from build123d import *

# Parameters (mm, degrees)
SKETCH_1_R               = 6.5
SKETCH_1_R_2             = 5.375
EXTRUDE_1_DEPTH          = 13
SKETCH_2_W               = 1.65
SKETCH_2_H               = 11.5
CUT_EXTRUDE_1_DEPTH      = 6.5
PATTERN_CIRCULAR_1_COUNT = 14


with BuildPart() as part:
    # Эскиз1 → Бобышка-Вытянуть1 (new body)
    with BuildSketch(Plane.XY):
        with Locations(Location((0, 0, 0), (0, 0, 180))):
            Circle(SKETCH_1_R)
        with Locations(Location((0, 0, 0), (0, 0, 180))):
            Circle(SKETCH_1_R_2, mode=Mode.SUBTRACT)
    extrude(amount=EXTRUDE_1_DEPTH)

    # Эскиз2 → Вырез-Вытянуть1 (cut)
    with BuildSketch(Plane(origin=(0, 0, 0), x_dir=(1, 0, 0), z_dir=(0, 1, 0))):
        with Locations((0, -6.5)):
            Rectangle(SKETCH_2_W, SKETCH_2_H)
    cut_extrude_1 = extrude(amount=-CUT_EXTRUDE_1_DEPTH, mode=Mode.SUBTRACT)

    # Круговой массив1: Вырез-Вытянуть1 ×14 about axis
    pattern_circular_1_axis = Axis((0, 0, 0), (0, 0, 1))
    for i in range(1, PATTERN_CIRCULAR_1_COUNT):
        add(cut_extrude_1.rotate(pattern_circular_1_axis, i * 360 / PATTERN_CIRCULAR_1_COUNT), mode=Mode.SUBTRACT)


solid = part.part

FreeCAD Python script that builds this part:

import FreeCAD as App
import Part
import Sketcher
from FreeCAD import Vector
Q = App.Units.Quantity


def add_polygon(sketch, points):
    """Adds a closed chain of lines whose ends are joined by coincident constraints."""
    first, n = sketch.GeometryCount, len(points)
    for a, b in zip(points, points[1:] + points[:1]):
        sketch.addGeometry(Part.LineSegment(App.Vector(*a, 0), App.Vector(*b, 0)), False)
    for i in range(n):
        sketch.addConstraint(Sketcher.Constraint("Coincident", first + i, 2, first + (i + 1) % n, 1))

doc = App.newDocument("Part")
body = doc.addObject("PartDesign::Body", "Body")

# Sketch on XY plane
sketch1 = body.newObject("Sketcher::SketchObject", "Sketch")
sketch1.AttachmentSupport = (doc.getObject("XY_Plane"), [""])
sketch1.MapMode = "FlatFace"
sketch1.addGeometry([
    Part.Circle(Vector(0, 0, 0), Vector(0, 0, 1), 6),
    Part.Circle(Vector(0, 0, 0), Vector(0, 0, 1), 5),
], False)
sketch1.addConstraint([
    Sketcher.Constraint("Coincident", 0, 3, -1, 1),
    Sketcher.Constraint("Coincident", 1, 3, -1, 1),
    Sketcher.Constraint("Diameter", 0, Q("13 mm")),
    Sketcher.Constraint("Diameter", 1, Q("10.75 mm")),
])
pad1 = body.newObject("PartDesign::Pad", "Pad")
pad1.Profile = sketch1
pad1.Length = 13

# Sketch on XZ plane
sketch2 = body.newObject("Sketcher::SketchObject", "Sketch001")
sketch2.AttachmentSupport = (doc.getObject("XZ_Plane"), [""])
sketch2.MapMode = "FlatFace"
add_polygon(sketch2, [(-0.8, 0.8), (-0.8, 12.2), (0.8, 12.2), (0.8, 0.8)])  # lines 0-3
sketch2.addConstraint([
    Sketcher.Constraint("Vertical", 0),
    Sketcher.Constraint("Horizontal", 1),
    Sketcher.Constraint("Vertical", 2),
    Sketcher.Constraint("Horizontal", 3),
    Sketcher.Constraint("DistanceY", 0, 1, 0, 2, Q("11.5 mm")),
    Sketcher.Constraint("DistanceX", 1, 1, 1, 2, Q("1.65 mm")),
    Sketcher.Constraint("DistanceY", -1, 1, 0, 2, Q("12.25 mm")),
    Sketcher.Constraint("DistanceX", 0, 2, -1, 1, Q("0.825 mm")),
])
pocket1 = body.newObject("PartDesign::Pocket", "Pocket")
pocket1.Profile = sketch2
pocket1.Length = 6.5
pocket1.Reversed = True
doc.recompute()

polarpattern = body.newObject("PartDesign::PolarPattern", "PolarPattern")
polarpattern.Originals = [pocket1]
polarpattern.Axis = (doc.getObject("Z_Axis"), [""])
polarpattern.Angle = 360
polarpattern.Occurrences = 14
body.Tip = polarpattern

doc.recompute()
